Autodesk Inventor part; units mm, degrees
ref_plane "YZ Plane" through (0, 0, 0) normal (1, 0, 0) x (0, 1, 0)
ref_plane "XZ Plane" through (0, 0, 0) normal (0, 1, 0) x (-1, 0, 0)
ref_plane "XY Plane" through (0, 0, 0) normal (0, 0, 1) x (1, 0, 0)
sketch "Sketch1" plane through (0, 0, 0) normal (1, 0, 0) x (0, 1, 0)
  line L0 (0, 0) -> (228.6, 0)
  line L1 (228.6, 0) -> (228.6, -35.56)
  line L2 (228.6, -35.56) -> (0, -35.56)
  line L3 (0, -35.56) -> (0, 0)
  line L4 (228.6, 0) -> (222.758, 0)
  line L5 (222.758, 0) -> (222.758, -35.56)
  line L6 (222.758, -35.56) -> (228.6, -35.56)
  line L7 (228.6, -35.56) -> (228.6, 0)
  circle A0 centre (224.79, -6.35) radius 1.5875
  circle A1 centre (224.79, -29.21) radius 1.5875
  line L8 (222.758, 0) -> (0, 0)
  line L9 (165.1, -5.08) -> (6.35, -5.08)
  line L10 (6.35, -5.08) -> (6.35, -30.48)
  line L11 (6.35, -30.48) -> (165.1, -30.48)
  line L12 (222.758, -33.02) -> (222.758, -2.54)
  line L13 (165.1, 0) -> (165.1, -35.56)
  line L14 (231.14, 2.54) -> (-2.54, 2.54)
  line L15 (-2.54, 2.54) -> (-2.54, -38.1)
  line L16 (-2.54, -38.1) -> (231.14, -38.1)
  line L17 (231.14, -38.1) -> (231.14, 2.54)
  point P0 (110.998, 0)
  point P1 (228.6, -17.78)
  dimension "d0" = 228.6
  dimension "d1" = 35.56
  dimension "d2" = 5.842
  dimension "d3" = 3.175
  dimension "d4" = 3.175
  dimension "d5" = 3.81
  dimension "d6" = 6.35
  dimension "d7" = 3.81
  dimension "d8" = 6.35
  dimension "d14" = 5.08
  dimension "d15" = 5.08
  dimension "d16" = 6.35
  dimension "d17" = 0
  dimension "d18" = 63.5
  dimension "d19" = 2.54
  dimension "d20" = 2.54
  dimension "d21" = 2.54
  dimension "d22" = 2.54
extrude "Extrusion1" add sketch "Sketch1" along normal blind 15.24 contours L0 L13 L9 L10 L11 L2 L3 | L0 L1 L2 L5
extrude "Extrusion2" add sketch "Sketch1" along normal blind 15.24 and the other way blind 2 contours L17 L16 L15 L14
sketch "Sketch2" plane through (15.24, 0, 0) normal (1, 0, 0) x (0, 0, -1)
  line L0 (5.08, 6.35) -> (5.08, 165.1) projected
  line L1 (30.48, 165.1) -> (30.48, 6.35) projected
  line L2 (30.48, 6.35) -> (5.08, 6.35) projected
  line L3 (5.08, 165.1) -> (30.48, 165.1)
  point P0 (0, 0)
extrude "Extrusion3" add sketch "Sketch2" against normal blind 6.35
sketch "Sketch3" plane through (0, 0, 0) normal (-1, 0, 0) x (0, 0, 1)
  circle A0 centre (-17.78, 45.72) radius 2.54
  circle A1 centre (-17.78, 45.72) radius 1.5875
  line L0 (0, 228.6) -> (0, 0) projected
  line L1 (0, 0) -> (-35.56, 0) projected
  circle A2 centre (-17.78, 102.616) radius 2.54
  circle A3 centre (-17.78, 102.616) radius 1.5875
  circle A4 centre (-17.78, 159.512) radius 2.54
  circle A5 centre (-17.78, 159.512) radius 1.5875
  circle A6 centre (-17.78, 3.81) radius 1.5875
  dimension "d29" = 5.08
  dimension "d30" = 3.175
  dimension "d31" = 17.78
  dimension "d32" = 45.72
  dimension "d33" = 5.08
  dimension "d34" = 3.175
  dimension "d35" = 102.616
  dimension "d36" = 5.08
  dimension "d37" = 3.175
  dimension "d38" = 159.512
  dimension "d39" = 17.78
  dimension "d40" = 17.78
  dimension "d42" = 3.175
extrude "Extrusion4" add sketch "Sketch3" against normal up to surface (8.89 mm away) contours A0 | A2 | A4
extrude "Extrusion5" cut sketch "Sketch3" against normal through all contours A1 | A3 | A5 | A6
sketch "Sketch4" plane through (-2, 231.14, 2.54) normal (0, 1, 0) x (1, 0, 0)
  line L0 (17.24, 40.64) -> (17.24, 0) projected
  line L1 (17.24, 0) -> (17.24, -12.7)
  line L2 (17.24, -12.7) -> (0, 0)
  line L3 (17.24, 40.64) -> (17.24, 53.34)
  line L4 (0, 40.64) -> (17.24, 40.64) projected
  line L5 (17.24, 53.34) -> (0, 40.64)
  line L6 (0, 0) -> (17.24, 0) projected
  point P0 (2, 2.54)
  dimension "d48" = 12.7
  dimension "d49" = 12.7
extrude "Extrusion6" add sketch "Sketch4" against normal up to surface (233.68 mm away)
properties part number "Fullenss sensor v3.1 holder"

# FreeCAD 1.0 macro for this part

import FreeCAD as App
import Part
import Sketcher

V = App.Vector
Q = App.Units.Quantity

doc = App.newDocument("Part")
body = doc.addObject("PartDesign::Body", "Body")
body.AllowCompound = True

sketch1 = body.newObject("Sketcher::SketchObject", "Sketch")
sketch1.AttachmentSupport = (doc.getObject("YZ_Plane"), [""])
sketch1.MapMode = "FlatFace"
sketch1.addGeometry(Part.LineSegment(V(165.1, 0, 0), V(0, 0, 0)), False)
sketch1.addGeometry(Part.LineSegment(V(0, 0, 0), V(0, -35.56, 0)), False)
sketch1.addGeometry(Part.LineSegment(V(0, -35.56, 0), V(165.1, -35.56, 0)), False)
sketch1.addGeometry(Part.LineSegment(V(165.1, -35.56, 0), V(165.1, -30.48, 0)), False)
sketch1.addGeometry(Part.LineSegment(V(165.1, -30.48, 0), V(6.35, -30.48, 0)), False)
sketch1.addGeometry(Part.LineSegment(V(6.35, -30.48, 0), V(6.35, -5.08, 0)), False)
sketch1.addGeometry(Part.LineSegment(V(6.35, -5.08, 0), V(165.1, -5.08, 0)), False)
sketch1.addGeometry(Part.LineSegment(V(165.1, -5.08, 0), V(165.1, 0, 0)), False)
sketch1.addGeometry(Part.LineSegment(V(228.6, 0, 0), V(222.758, 0, 0)), False)
sketch1.addGeometry(Part.LineSegment(V(222.758, 0, 0), V(222.758, -35.56, 0)), False)
sketch1.addGeometry(Part.LineSegment(V(222.758, -35.56, 0), V(228.6, -35.56, 0)), False)
sketch1.addGeometry(Part.LineSegment(V(228.6, -35.56, 0), V(228.6, 0, 0)), False)
sketch1.addGeometry(Part.Circle(V(224.79, -29.21, 0), V(0, 0, 1), 1.5875), False)
sketch1.addGeometry(Part.Circle(V(224.79, -6.35, 0), V(0, 0, 1), 1.5875), False)
sketch1.addConstraint(Sketcher.Constraint("Coincident", 0, 2, 1, 1))
sketch1.addConstraint(Sketcher.Constraint("Coincident", 1, 2, 2, 1))
sketch1.addConstraint(Sketcher.Constraint("Coincident", 2, 2, 3, 1))
sketch1.addConstraint(Sketcher.Constraint("Coincident", 3, 2, 4, 1))
sketch1.addConstraint(Sketcher.Constraint("Coincident", 4, 2, 5, 1))
sketch1.addConstraint(Sketcher.Constraint("Coincident", 5, 2, 6, 1))
sketch1.addConstraint(Sketcher.Constraint("Coincident", 6, 2, 7, 1))
sketch1.addConstraint(Sketcher.Constraint("Coincident", 7, 2, 0, 1))
sketch1.addConstraint(Sketcher.Constraint("Coincident", 8, 2, 9, 1))
sketch1.addConstraint(Sketcher.Constraint("Coincident", 9, 2, 10, 1))
sketch1.addConstraint(Sketcher.Constraint("Coincident", 10, 2, 11, 1))
sketch1.addConstraint(Sketcher.Constraint("Coincident", 11, 2, 8, 1))
sketch1.addConstraint(Sketcher.Constraint("Horizontal", 0))
sketch1.addConstraint(Sketcher.Constraint("Vertical", 1))
sketch1.addConstraint(Sketcher.Constraint("Horizontal", 2))
sketch1.addConstraint(Sketcher.Constraint("Vertical", 3))
sketch1.addConstraint(Sketcher.Constraint("Horizontal", 4))
sketch1.addConstraint(Sketcher.Constraint("Vertical", 5))
sketch1.addConstraint(Sketcher.Constraint("Horizontal", 6))
sketch1.addConstraint(Sketcher.Constraint("Vertical", 7))
sketch1.addConstraint(Sketcher.Constraint("Horizontal", 8))
sketch1.addConstraint(Sketcher.Constraint("Vertical", 9))
sketch1.addConstraint(Sketcher.Constraint("Horizontal", 10))
sketch1.addConstraint(Sketcher.Constraint("Vertical", 11))
sketch1.addConstraint(Sketcher.Constraint("Coincident", 0, 2, -1, 1))
sketch1.addConstraint(Sketcher.Constraint("Equal", 12, 13))
sketch1.addConstraint(Sketcher.Constraint("PointOnObject", 8, 2, -1))
sketch1.addConstraint(Sketcher.Constraint("Horizontal", 2, 2, 9, 2))
sketch1.addConstraint(Sketcher.Constraint("Vertical", 12, 3, 13, 3))
sketch1.addConstraint(Sketcher.Constraint("Vertical", 3, 2, 6, 2))
sketch1.addConstraint(Sketcher.Constraint("Equal", 3, 7))
sketch1.addConstraint(Sketcher.Constraint("Diameter", 12, Q("0.125 in")))
sketch1.addConstraint(Sketcher.Constraint("DistanceY", 1, 2, 1, 1, Q("1.4 in")))
sketch1.addConstraint(Sketcher.Constraint("DistanceY", 3, 1, 3, 2, Q("0.2 in")))
sketch1.addConstraint(Sketcher.Constraint("DistanceX", -1, 1, 10, 2, Q("9 in")))
sketch1.addConstraint(Sketcher.Constraint("DistanceX", 8, 2, 8, 1, Q("0.23 in")))
sketch1.addConstraint(Sketcher.Constraint("DistanceX", 2, 2, 10, 2, Q("2.5 in")))
sketch1.addConstraint(Sketcher.Constraint("DistanceY", 13, 3, -1, 1, Q("0.25 in")))
sketch1.addConstraint(Sketcher.Constraint("DistanceX", -1, 1, 4, 2, Q("0.25 in")))
sketch1.addConstraint(Sketcher.Constraint("DistanceY", 1, 2, 12, 3, Q("0.25 in")))
sketch1.addConstraint(Sketcher.Constraint("DistanceX", 12, 3, 10, 2, Q("0.15 in")))
pad1 = body.newObject("PartDesign::Pad", "Pad")
pad1.Profile = sketch1
pad1.Length = Q("0.6 in")

sketch2 = body.newObject("Sketcher::SketchObject", "Sketch001")
sketch2.AttachmentSupport = (doc.getObject("YZ_Plane"), [""])
sketch2.MapMode = "FlatFace"
sketch2.addGeometry(Part.LineSegment(V(231.14, -38.1, 0), V(231.14, 2.54, 0)), False)
sketch2.addGeometry(Part.LineSegment(V(231.14, 2.54, 0), V(-2.54, 2.54, 0)), False)
sketch2.addGeometry(Part.LineSegment(V(-2.54, 2.54, 0), V(-2.54, -38.1, 0)), False)
sketch2.addGeometry(Part.LineSegment(V(-2.54, -38.1, 0), V(231.14, -38.1, 0)), False)
sketch2.addGeometry(Part.LineSegment(V(0, -35.56, 0), V(0, 0, 0)), False)
sketch2.addGeometry(Part.LineSegment(V(0, 0, 0), V(228.6, 0, 0)), False)
sketch2.addGeometry(Part.LineSegment(V(228.6, 0, 0), V(228.6, -35.56, 0)), False)
sketch2.addGeometry(Part.LineSegment(V(228.6, -35.56, 0), V(0, -35.56, 0)), False)
sketch2.addConstraint(Sketcher.Constraint("Coincident", 0, 2, 1, 1))
sketch2.addConstraint(Sketcher.Constraint("Coincident", 1, 2, 2, 1))
sketch2.addConstraint(Sketcher.Constraint("Coincident", 2, 2, 3, 1))
sketch2.addConstraint(Sketcher.Constraint("Coincident", 3, 2, 0, 1))
sketch2.addConstraint(Sketcher.Constraint("Coincident", 4, 2, 5, 1))
sketch2.addConstraint(Sketcher.Constraint("Coincident", 5, 2, 6, 1))
sketch2.addConstraint(Sketcher.Constraint("Coincident", 6, 2, 7, 1))
sketch2.addConstraint(Sketcher.Constraint("Coincident", 7, 2, 4, 1))
sketch2.addConstraint(Sketcher.Constraint("Vertical", 0))
sketch2.addConstraint(Sketcher.Constraint("Horizontal", 1))
sketch2.addConstraint(Sketcher.Constraint("Vertical", 2))
sketch2.addConstraint(Sketcher.Constraint("Horizontal", 3))
sketch2.addConstraint(Sketcher.Constraint("Vertical", 4))
sketch2.addConstraint(Sketcher.Constraint("Horizontal", 5))
sketch2.addConstraint(Sketcher.Constraint("Vertical", 6))
sketch2.addConstraint(Sketcher.Constraint("Horizontal", 7))
sketch2.addConstraint(Sketcher.Constraint("Coincident", 4, 2, -1, 1))
sketch2.addConstraint(Sketcher.Constraint("DistanceX", 5, 1, 5, 2, Q("9 in")))
sketch2.addConstraint(Sketcher.Constraint("DistanceY", 4, 1, 4, 2, Q("1.4 in")))
sketch2.addConstraint(Sketcher.Constraint("DistanceY", -1, 1, 0, 2, Q("0.1 in")))
sketch2.addConstraint(Sketcher.Constraint("DistanceX", 1, 2, -1, 1, Q("0.1 in")))
sketch2.addConstraint(Sketcher.Constraint("DistanceX", 5, 2, 0, 2, Q("0.1 in")))
sketch2.addConstraint(Sketcher.Constraint("DistanceY", 3, 2, 6, 2, Q("0.1 in")))
pad2 = body.newObject("PartDesign::Pad", "Pad001")
pad2.Profile = sketch2
pad2.Type = "TwoLengths"
pad2.Length = Q("0.6 in")
pad2.Length2 = 2

sketch3 = body.newObject("Sketcher::SketchObject", "Sketch002")
sketch3.AttachmentSupport = (doc.getObject("YZ_Plane"), [""])
sketch3.MapMode = "FlatFace"
sketch3.AttachmentOffset = App.Placement(V(0, 0, 0.6 * 25.4), App.Rotation())
sketch3.addGeometry(Part.LineSegment(V(165.1, -5.08, 0), V(6.35, -5.08, 0)), False)
sketch3.addGeometry(Part.LineSegment(V(6.35, -5.08, 0), V(6.35, -30.48, 0)), False)
sketch3.addGeometry(Part.LineSegment(V(6.35, -30.48, 0), V(165.1, -30.48, 0)), False)
sketch3.addGeometry(Part.LineSegment(V(165.1, -30.48, 0), V(165.1, -5.08, 0)), False)
sketch3.addConstraint(Sketcher.Constraint("Coincident", 0, 2, 1, 1))
sketch3.addConstraint(Sketcher.Constraint("Coincident", 1, 2, 2, 1))
sketch3.addConstraint(Sketcher.Constraint("Coincident", 2, 2, 3, 1))
sketch3.addConstraint(Sketcher.Constraint("Coincident", 3, 2, 0, 1))
sketch3.addConstraint(Sketcher.Constraint("Horizontal", 0))
sketch3.addConstraint(Sketcher.Constraint("Vertical", 1))
sketch3.addConstraint(Sketcher.Constraint("Horizontal", 2))
sketch3.addConstraint(Sketcher.Constraint("Vertical", 3))
sketch3.addConstraint(Sketcher.Constraint("DistanceY", 1, 2, 1, 1, Q("1 in")))
sketch3.addConstraint(Sketcher.Constraint("DistanceX", 0, 2, 0, 1, Q("6.25 in")))
sketch3.addConstraint(Sketcher.Constraint("DistanceY", 0, 2, -1, 1, Q("0.2 in")))
sketch3.addConstraint(Sketcher.Constraint("DistanceX", -1, 1, 2, 2, Q("6.5 in")))
pad3 = body.newObject("PartDesign::Pad", "Pad002")
pad3.Profile = sketch3
pad3.Length = Q("0.25 in")
pad3.Reversed = True

sketch4 = body.newObject("Sketcher::SketchObject", "Sketch003")
sketch4.AttachmentSupport = (doc.getObject("YZ_Plane"), [""])
sketch4.MapMode = "FlatFace"
sketch4.addGeometry(Part.Circle(V(45.72, -17.78, 0), V(0, 0, 1), 2.54), False)
sketch4.addGeometry(Part.Circle(V(45.72, -17.78, 0), V(0, 0, 1), 1.5875), False)
sketch4.addGeometry(Part.Circle(V(102.616, -17.78, 0), V(0, 0, 1), 2.54), False)
sketch4.addGeometry(Part.Circle(V(102.616, -17.78, 0), V(0, 0, 1), 1.5875), False)
sketch4.addGeometry(Part.Circle(V(159.512, -17.78, 0), V(0, 0, 1), 2.54), False)
sketch4.addGeometry(Part.Circle(V(159.512, -17.78, 0), V(0, 0, 1), 1.5875), False)
sketch4.addConstraint(Sketcher.Constraint("Coincident", 1, 3, 0, 3))
sketch4.addConstraint(Sketcher.Constraint("Coincident", 3, 3, 2, 3))
sketch4.addConstraint(Sketcher.Constraint("Coincident", 5, 3, 4, 3))
sketch4.addConstraint(Sketcher.Constraint("Equal", 0, 2))
sketch4.addConstraint(Sketcher.Constraint("Equal", 1, 3))
sketch4.addConstraint(Sketcher.Constraint("Equal", 2, 4))
sketch4.addConstraint(Sketcher.Constraint("Equal", 3, 5))
sketch4.addConstraint(Sketcher.Constraint("Horizontal", 1, 3, 2, 3))
sketch4.addConstraint(Sketcher.Constraint("Horizontal", 3, 3, 4, 3))
sketch4.addConstraint(Sketcher.Constraint("Diameter", 0, Q("0.2 in")))
sketch4.addConstraint(Sketcher.Constraint("Diameter", 1, Q("0.125 in")))
sketch4.addConstraint(Sketcher.Constraint("DistanceX", -1, 1, 0, 3, Q("1.8 in")))
sketch4.addConstraint(Sketcher.Constraint("DistanceY", 0, 3, -1, 1, Q("0.7 in")))
sketch4.addConstraint(Sketcher.Constraint("DistanceX", -1, 1, 2, 3, Q("4.04 in")))
sketch4.addConstraint(Sketcher.Constraint("DistanceX", -1, 1, 4, 3, Q("6.28 in")))
pad4 = body.newObject("PartDesign::Pad", "Pad003")
pad4.Profile = sketch4
pad4.Length = Q("0.35 in")

sketch5 = body.newObject("Sketcher::SketchObject", "Sketch004")
sketch5.AttachmentSupport = (doc.getObject("YZ_Plane"), [""])
sketch5.MapMode = "FlatFace"
sketch5.addGeometry(Part.Circle(V(45.72, -17.78, 0), V(0, 0, 1), 1.5875), False)
sketch5.addGeometry(Part.Circle(V(102.616, -17.78, 0), V(0, 0, 1), 1.5875), False)
sketch5.addGeometry(Part.Circle(V(159.512, -17.78, 0), V(0, 0, 1), 1.5875), False)
sketch5.addGeometry(Part.Circle(V(3.81, -17.78, 0), V(0, 0, 1), 1.5875), False)
sketch5.addConstraint(Sketcher.Constraint("Equal", 0, 1))
sketch5.addConstraint(Sketcher.Constraint("Equal", 1, 2))
sketch5.addConstraint(Sketcher.Constraint("Equal", 2, 3))
sketch5.addConstraint(Sketcher.Constraint("Horizontal", 0, 3, 1, 3))
sketch5.addConstraint(Sketcher.Constraint("Horizontal", 1, 3, 2, 3))
sketch5.addConstraint(Sketcher.Constraint("Horizontal", 2, 3, 3, 3))
sketch5.addConstraint(Sketcher.Constraint("Diameter", 0, Q("0.125 in")))
sketch5.addConstraint(Sketcher.Constraint("DistanceX", -1, 1, 0, 3, Q("1.8 in")))
sketch5.addConstraint(Sketcher.Constraint("DistanceY", 0, 3, -1, 1, Q("0.7 in")))
sketch5.addConstraint(Sketcher.Constraint("DistanceX", -1, 1, 1, 3, Q("4.04 in")))
sketch5.addConstraint(Sketcher.Constraint("DistanceX", -1, 1, 2, 3, Q("6.28 in")))
sketch5.addConstraint(Sketcher.Constraint("DistanceX", -1, 1, 3, 3, Q("0.15 in")))
pocket1 = body.newObject("PartDesign::Pocket", "Pocket")
pocket1.Profile = sketch5
pocket1.Type = "ThroughAll"
pocket1.Reversed = True

sketch6 = body.newObject("Sketcher::SketchObject", "Sketch005")
sketch6.AttachmentSupport = (doc.getObject("XZ_Plane"), [""])
sketch6.MapMode = "FlatFace"
sketch6.AttachmentOffset = App.Placement(V(0, 0, -9.1 * 25.4), App.Rotation())
sketch6.addGeometry(Part.LineSegment(V(15.24, 15.24, 0), V(15.24, 2.54, 0)), False)
sketch6.addGeometry(Part.LineSegment(V(15.24, 2.54, 0), V(-2, 2.54, 0)), False)
sketch6.addGeometry(Part.LineSegment(V(-2, 2.54, 0), V(15.24, 15.24, 0)), False)
sketch6.addGeometry(Part.LineSegment(V(-2, -38.1, 0), V(15.24, -38.1, 0)), False)
sketch6.addGeometry(Part.LineSegment(V(15.24, -38.1, 0), V(15.24, -50.8, 0)), False)
sketch6.addGeometry(Part.LineSegment(V(15.24, -50.8, 0), V(-2, -38.1, 0)), False)
sketch6.addConstraint(Sketcher.Constraint("Coincident", 0, 2, 1, 1))
sketch6.addConstraint(Sketcher.Constraint("Coincident", 1, 2, 2, 1))
sketch6.addConstraint(Sketcher.Constraint("Coincident", 2, 2, 0, 1))
sketch6.addConstraint(Sketcher.Constraint("Coincident", 3, 2, 4, 1))
sketch6.addConstraint(Sketcher.Constraint("Coincident", 4, 2, 5, 1))
sketch6.addConstraint(Sketcher.Constraint("Coincident", 5, 2, 3, 1))
sketch6.addConstraint(Sketcher.Constraint("Vertical", 0))
sketch6.addConstraint(Sketcher.Constraint("Horizontal", 1))
sketch6.addConstraint(Sketcher.Constraint("Horizontal", 3))
sketch6.addConstraint(Sketcher.Constraint("Vertical", 4))
sketch6.addConstraint(Sketcher.Constraint("Vertical", 2, 2, 3, 2))
sketch6.addConstraint(Sketcher.Constraint("Vertical", 1, 2, 5, 2))
sketch6.addConstraint(Sketcher.Constraint("Equal", 0, 4))
sketch6.addConstraint(Sketcher.Constraint("DistanceY", 0, 2, 0, 1, Q("0.5 in")))
sketch6.addConstraint(Sketcher.Constraint("DistanceY", 4, 2, -1, 1, Q("2 in")))
sketch6.addConstraint(Sketcher.Constraint("DistanceX", -1, 1, 0, 2, Q("0.6 in")))
sketch6.addConstraint(Sketcher.Constraint("DistanceY", -1, 1, 0, 2, Q("0.1 in")))
sketch6.addConstraint(Sketcher.Constraint("DistanceX", 1, 2, 1, 1, 17.24))
pad5 = body.newObject("PartDesign::Pad", "Pad004")
pad5.Profile = sketch6
pad5.Length = Q("9.2 in")

doc.recompute()
